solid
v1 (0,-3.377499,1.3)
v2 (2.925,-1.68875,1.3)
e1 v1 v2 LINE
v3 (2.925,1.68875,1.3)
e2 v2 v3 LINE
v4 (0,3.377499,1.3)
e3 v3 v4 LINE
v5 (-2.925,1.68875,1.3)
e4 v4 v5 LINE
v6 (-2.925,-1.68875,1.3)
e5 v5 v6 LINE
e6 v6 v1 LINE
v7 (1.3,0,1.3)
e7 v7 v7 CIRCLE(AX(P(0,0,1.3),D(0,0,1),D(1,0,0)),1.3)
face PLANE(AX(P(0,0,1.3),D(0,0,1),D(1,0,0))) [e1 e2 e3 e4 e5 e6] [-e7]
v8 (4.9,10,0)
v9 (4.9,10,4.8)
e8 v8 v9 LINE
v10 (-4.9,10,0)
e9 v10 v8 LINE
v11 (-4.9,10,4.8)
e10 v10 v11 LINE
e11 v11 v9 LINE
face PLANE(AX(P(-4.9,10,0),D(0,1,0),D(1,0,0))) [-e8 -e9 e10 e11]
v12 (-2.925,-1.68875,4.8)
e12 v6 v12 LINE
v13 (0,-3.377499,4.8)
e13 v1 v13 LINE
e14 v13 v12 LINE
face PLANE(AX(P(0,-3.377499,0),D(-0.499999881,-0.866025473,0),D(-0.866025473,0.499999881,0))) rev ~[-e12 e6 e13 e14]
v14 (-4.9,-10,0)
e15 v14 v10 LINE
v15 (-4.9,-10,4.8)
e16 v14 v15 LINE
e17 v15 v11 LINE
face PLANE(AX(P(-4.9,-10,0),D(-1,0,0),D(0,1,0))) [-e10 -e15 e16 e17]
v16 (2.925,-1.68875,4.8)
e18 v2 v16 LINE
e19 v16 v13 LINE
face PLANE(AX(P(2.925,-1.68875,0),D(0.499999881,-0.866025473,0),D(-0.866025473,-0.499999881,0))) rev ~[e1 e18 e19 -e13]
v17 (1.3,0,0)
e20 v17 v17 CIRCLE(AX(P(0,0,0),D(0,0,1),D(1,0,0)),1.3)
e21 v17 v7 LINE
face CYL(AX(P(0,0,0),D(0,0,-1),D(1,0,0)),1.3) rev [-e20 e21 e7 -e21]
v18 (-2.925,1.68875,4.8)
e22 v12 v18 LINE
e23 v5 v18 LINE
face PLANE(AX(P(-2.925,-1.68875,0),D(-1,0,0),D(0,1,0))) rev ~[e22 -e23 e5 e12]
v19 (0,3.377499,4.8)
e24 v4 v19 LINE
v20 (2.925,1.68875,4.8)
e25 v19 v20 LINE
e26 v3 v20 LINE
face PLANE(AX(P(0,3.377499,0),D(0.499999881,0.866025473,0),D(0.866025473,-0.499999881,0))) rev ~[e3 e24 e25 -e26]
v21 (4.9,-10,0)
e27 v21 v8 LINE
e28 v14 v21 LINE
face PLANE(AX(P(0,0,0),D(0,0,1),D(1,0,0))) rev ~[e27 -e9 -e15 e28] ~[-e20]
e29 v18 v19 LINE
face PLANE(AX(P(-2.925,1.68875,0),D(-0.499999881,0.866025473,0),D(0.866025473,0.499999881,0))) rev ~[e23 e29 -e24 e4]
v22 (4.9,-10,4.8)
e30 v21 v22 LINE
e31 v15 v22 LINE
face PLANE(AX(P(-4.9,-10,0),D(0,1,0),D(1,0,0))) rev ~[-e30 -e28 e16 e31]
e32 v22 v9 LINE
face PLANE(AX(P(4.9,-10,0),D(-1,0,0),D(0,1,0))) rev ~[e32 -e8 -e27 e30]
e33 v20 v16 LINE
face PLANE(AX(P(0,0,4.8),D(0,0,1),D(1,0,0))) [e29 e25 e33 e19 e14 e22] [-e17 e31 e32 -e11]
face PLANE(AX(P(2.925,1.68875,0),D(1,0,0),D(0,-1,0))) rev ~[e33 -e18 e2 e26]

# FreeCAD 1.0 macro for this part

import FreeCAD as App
import Part
import Sketcher

V = App.Vector
Q = App.Units.Quantity


def add_polygon(sketch, points):
    """Adds a closed chain of lines whose ends are joined by coincident constraints."""
    first, n = sketch.GeometryCount, len(points)
    for a, b in zip(points, points[1:] + points[:1]):
        sketch.addGeometry(Part.LineSegment(App.Vector(*a, 0), App.Vector(*b, 0)), False)
    for i in range(n):
        sketch.addConstraint(Sketcher.Constraint("Coincident", first + i, 2, first + (i + 1) % n, 1))

doc = App.newDocument("Part")
body = doc.addObject("PartDesign::Body", "Body")

sketch1 = body.newObject("Sketcher::SketchObject", "Sketch")
sketch1.AttachmentSupport = (doc.getObject("XY_Plane"), [""])
sketch1.MapMode = "FlatFace"
add_polygon(sketch1, [(-4.9, 10), (-4.9, -10), (4.9, -10), (4.9, 10)])
add_polygon(sketch1, [(-2.9, 1.7), (0, 3.4), (2.9, 1.7), (2.9, -1.7), (0, -3.4), (-2.9, -1.7)])
sketch1.addConstraint(Sketcher.Constraint("Vertical", 0))
sketch1.addConstraint(Sketcher.Constraint("Horizontal", 1))
sketch1.addConstraint(Sketcher.Constraint("Vertical", 2))
sketch1.addConstraint(Sketcher.Constraint("Horizontal", 3))
sketch1.addConstraint(Sketcher.Constraint("Vertical", 6))
sketch1.addConstraint(Sketcher.Constraint("Vertical", 9))
sketch1.addConstraint(Sketcher.Constraint("Symmetric", 0, 2, 2, 2, -1, 1))
sketch1.addConstraint(Sketcher.Constraint("Symmetric", 4, 2, 7, 2, -1, 1))
sketch1.addConstraint(Sketcher.Constraint("Symmetric", 5, 2, 8, 2, -1, 1))
sketch1.addConstraint(Sketcher.Constraint("PointOnObject", 4, 2, -2))
sketch1.addConstraint(Sketcher.Constraint("Parallel", 4, 7))
sketch1.addConstraint(Sketcher.Constraint("Horizontal", 6, 2, 8, 2))
sketch1.addConstraint(Sketcher.Constraint("DistanceY", 0, 2, 0, 1, Q("20 mm")))
sketch1.addConstraint(Sketcher.Constraint("Angle", 4, Q("29.999992 deg")))
sketch1.addConstraint(Sketcher.Constraint("DistanceX", 1, 1, 1, 2, Q("9.8 mm")))
sketch1.addConstraint(Sketcher.Constraint("DistanceX", 8, 2, 6, 2, Q("5.85 mm")))
sketch1.addConstraint(Sketcher.Constraint("DistanceY", 6, 2, 6, 1, Q("3.3775 mm")))
pad1 = body.newObject("PartDesign::Pad", "Pad")
pad1.Profile = sketch1
pad1.Length = 4.8

sketch2 = body.newObject("Sketcher::SketchObject", "Sketch001")
sketch2.AttachmentSupport = (doc.getObject("XY_Plane"), [""])
sketch2.MapMode = "FlatFace"
add_polygon(sketch2, [(2.9, -1.7), (2.9, 1.7), (0, 3.4), (-2.9, 1.7), (-2.9, -1.7), (0, -3.4)])
sketch2.addGeometry(Part.Circle(V(0, 0, 0), V(0, 0, 1), 1.3), False)
sketch2.addConstraint(Sketcher.Constraint("Vertical", 0))
sketch2.addConstraint(Sketcher.Constraint("Vertical", 3))
sketch2.addConstraint(Sketcher.Constraint("Coincident", 6, 3, -1, 1))
sketch2.addConstraint(Sketcher.Constraint("Symmetric", 0, 2, 3, 2, -1, 1))
sketch2.addConstraint(Sketcher.Constraint("Symmetric", 1, 2, 4, 2, -1, 1))
sketch2.addConstraint(Sketcher.Constraint("PointOnObject", 1, 2, -2))
sketch2.addConstraint(Sketcher.Constraint("Parallel", 2, 5))
sketch2.addConstraint(Sketcher.Constraint("Horizontal", 0, 2, 2, 2))
sketch2.addConstraint(Sketcher.Constraint("Diameter", 6, Q("2.6 mm")))
sketch2.addConstraint(Sketcher.Constraint("Angle", 1, Q("150.000008 deg")))
sketch2.addConstraint(Sketcher.Constraint("DistanceX", 2, 2, 0, 2, Q("5.85 mm")))
sketch2.addConstraint(Sketcher.Constraint("DistanceY", 0, 1, 0, 2, Q("3.3775 mm")))
pad2 = body.newObject("PartDesign::Pad", "Pad001")
pad2.Profile = sketch2
pad2.Length = 1.3

doc.recompute()
